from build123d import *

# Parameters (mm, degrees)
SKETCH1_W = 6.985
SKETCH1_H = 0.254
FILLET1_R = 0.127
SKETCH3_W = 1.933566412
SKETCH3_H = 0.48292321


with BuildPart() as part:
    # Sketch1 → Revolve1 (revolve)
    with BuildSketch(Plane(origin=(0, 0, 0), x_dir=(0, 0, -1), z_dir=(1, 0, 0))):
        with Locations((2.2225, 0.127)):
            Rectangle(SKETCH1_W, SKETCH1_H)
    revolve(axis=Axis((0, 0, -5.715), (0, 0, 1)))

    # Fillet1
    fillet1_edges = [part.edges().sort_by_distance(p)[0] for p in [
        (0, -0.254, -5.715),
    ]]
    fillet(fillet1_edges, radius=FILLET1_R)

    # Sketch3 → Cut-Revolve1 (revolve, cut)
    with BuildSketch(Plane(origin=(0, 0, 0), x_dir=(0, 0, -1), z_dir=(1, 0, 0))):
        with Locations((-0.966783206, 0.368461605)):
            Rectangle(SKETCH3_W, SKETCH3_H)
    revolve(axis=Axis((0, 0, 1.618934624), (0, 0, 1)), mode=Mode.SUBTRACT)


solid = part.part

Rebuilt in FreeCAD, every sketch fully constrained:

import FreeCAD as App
import Part
import Sketcher

V = App.Vector
Q = App.Units.Quantity


def edges_at(feature, points):
    """Names of the edges that pass closest to the given points."""
    edges = feature.Shape.Edges
    near = lambda p: min(range(len(edges)), key=lambda i: edges[i].distToShape(Part.Vertex(*p))[0])
    return sorted({f"Edge{near(p) + 1}" for p in points})

doc = App.newDocument("Part")
body = doc.addObject("PartDesign::Body", "Body")

sketch1 = body.newObject("Sketcher::SketchObject", "Sketch")
sketch1.AttachmentSupport = (doc.getObject("YZ_Plane"), [""])
sketch1.MapMode = "FlatFace"
sketch1.addGeometry(Part.LineSegment(V(0.254, 1.27, 0), V(0, 1.27, 0)), False)
sketch1.addGeometry(Part.LineSegment(V(0, 1.27, 0), V(0, -5.715, 0)), False)
sketch1.addGeometry(Part.LineSegment(V(0, -5.715, 0), V(0.254, -5.715, 0)), False)
sketch1.addGeometry(Part.LineSegment(V(0.254, -5.715, 0), V(0.254, 1.27, 0)), False)
sketch1.addConstraint(Sketcher.Constraint("Coincident", 0, 2, 1, 1))
sketch1.addConstraint(Sketcher.Constraint("Coincident", 1, 2, 2, 1))
sketch1.addConstraint(Sketcher.Constraint("Coincident", 2, 2, 3, 1))
sketch1.addConstraint(Sketcher.Constraint("Coincident", 3, 2, 0, 1))
sketch1.addConstraint(Sketcher.Constraint("Horizontal", 0))
sketch1.addConstraint(Sketcher.Constraint("Vertical", 1))
sketch1.addConstraint(Sketcher.Constraint("Horizontal", 2))
sketch1.addConstraint(Sketcher.Constraint("Vertical", 3))
sketch1.addConstraint(Sketcher.Constraint("PointOnObject", 0, 2, -2))
sketch1.addConstraint(Sketcher.Constraint("DistanceX", 0, 2, 0, 1, Q("0.01 in")))
sketch1.addConstraint(Sketcher.Constraint("DistanceY", 1, 2, 1, 1, Q("0.275 in")))
sketch1.addConstraint(Sketcher.Constraint("DistanceY", -1, 1, 0, 2, Q("0.05 in")))
revolution = body.newObject("PartDesign::Revolution", "Revolution")
revolution.Profile = sketch1
revolution.ReferenceAxis = (sketch1, ["V_Axis"])
revolution.Angle = 360
doc.recompute()

fillet = body.newObject("PartDesign::Fillet", "Fillet")
fillet.Base = (revolution, edges_at(revolution, [(0, -0.254, -5.715)]))
fillet.Radius = Q("0.005 in")

sketch2 = body.newObject("Sketcher::SketchObject", "Sketch001")
sketch2.AttachmentSupport = (doc.getObject("YZ_Plane"), [""])
sketch2.MapMode = "FlatFace"
sketch2.addGeometry(Part.LineSegment(V(0.609923, 1.933566, 0), V(0.127, 1.933566, 0)), False)
sketch2.addGeometry(Part.LineSegment(V(0.127, 1.933566, 0), V(0.127, 0, 0)), False)
sketch2.addGeometry(Part.LineSegment(V(0.127, 0, 0), V(0.609923, 0, 0)), False)
sketch2.addGeometry(Part.LineSegment(V(0.609923, 0, 0), V(0.609923, 1.933566, 0)), False)
sketch2.addConstraint(Sketcher.Constraint("Coincident", 0, 2, 1, 1))
sketch2.addConstraint(Sketcher.Constraint("Coincident", 1, 2, 2, 1))
sketch2.addConstraint(Sketcher.Constraint("Coincident", 2, 2, 3, 1))
sketch2.addConstraint(Sketcher.Constraint("Coincident", 3, 2, 0, 1))
sketch2.addConstraint(Sketcher.Constraint("Horizontal", 0))
sketch2.addConstraint(Sketcher.Constraint("Vertical", 1))
sketch2.addConstraint(Sketcher.Constraint("Horizontal", 2))
sketch2.addConstraint(Sketcher.Constraint("Vertical", 3))
sketch2.addConstraint(Sketcher.Constraint("PointOnObject", 1, 2, -1))
sketch2.addConstraint(Sketcher.Constraint("DistanceX", -1, 1, 0, 2, Q("0.005 in")))
sketch2.addConstraint(Sketcher.Constraint("DistanceX", 0, 2, 0, 1, Q("0.482923 mm")))
sketch2.addConstraint(Sketcher.Constraint("DistanceY", 1, 2, 1, 1, Q("1.933566 mm")))
groove = body.newObject("PartDesign::Groove", "Groove")
groove.Profile = sketch2
groove.ReferenceAxis = (sketch2, ["V_Axis"])
groove.Angle = 360

doc.recompute()
